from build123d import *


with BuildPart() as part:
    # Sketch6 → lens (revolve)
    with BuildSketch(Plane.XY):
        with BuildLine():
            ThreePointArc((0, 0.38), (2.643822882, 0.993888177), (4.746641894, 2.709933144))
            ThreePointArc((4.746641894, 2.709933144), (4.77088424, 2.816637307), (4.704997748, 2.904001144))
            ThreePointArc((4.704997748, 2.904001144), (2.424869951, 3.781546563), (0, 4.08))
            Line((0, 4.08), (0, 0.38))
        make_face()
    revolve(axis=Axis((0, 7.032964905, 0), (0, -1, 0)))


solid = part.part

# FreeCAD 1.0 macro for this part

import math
import FreeCAD as App
import Part
import Sketcher
from FreeCAD import Vector
Q = App.Units.Quantity

doc = App.newDocument("Part")
params = doc.addObject("Spreadsheet::Sheet", "Params")
for row, (alias, value) in enumerate([
    ("sketch1_radius", "6 mm"),
    ("sketch1_radius2", "10 mm"),
    ("sketch1_height", "3.7 mm"),
    ("revolution_angle", "360 deg"),
], start=1):
    params.set(f"A{row}", alias)
    params.set(f"B{row}", "=" + value)
    params.setAlias(f"B{row}", alias)

body = doc.addObject("PartDesign::Body", "Body")

# Sketch on XY plane
sketch1 = body.newObject("Sketcher::SketchObject", "Sketch")
sketch1.AttachmentSupport = (doc.getObject("XY_Plane"), [""])
sketch1.MapMode = "FlatFace"
sketch1.addGeometry(Part.ArcOfCircle(Part.Circle(Vector(0, 6.38, 0), Vector(0, 0, 1), 6), math.radians(-90), math.radians(-38)), False)
sketch1.addGeometry(Part.ArcOfCircle(Part.Circle(Vector(4.64, 2.79, 0), Vector(0, 0, 1), 0.13), math.radians(-38), math.radians(62)), False)
sketch1.addGeometry(Part.ArcOfCircle(Part.Circle(Vector(0, -5.92, 0), Vector(0, 0, 1), 10), math.radians(62), math.radians(90)), False)
sketch1.addGeometry(Part.LineSegment(Vector(0, 4.08, 0), Vector(0, 0.38, 0)), False)
sketch1.addConstraint(Sketcher.Constraint("Tangent", 0, 2, 1, 1))
sketch1.addConstraint(Sketcher.Constraint("Tangent", 1, 2, 2, 1))
sketch1.addConstraint(Sketcher.Constraint("Coincident", 2, 2, 3, 1))
sketch1.addConstraint(Sketcher.Constraint("Coincident", 3, 2, 0, 1))
sketch1.addConstraint(Sketcher.Constraint("Vertical", 3))
sketch1.addConstraint(Sketcher.Constraint("PointOnObject", 0, 3, -2))
sketch1.addConstraint(Sketcher.Constraint("PointOnObject", 2, 3, -2))
sketch1.addConstraint(Sketcher.Constraint("PointOnObject", 2, 2, -2))
sketch1.addConstraint(Sketcher.Constraint("Radius", 0, Q("6 mm")))
sketch1.addConstraint(Sketcher.Constraint("Radius", 2, Q("10 mm")))
sketch1.addConstraint(Sketcher.Constraint("DistanceY", 3, 2, 3, 1, Q("3.7 mm")))
sketch1.addConstraint(Sketcher.Constraint("DistanceY", -1, 1, 0, 3, Q("6.38 mm")))
sketch1.addConstraint(Sketcher.Constraint("Radius", 1, Q("0.129891 mm")))
sketch1.setExpression("Constraints[8]", "Params.sketch1_radius")
sketch1.setExpression("Constraints[9]", "Params.sketch1_radius2")
sketch1.setExpression("Constraints[10]", "Params.sketch1_height")
revolution = body.newObject("PartDesign::Revolution", "Revolution")
revolution.Profile = sketch1
revolution.ReferenceAxis = (sketch1, ["V_Axis"])
revolution.setExpression("Angle", "Params.revolution_angle")

doc.recompute()
